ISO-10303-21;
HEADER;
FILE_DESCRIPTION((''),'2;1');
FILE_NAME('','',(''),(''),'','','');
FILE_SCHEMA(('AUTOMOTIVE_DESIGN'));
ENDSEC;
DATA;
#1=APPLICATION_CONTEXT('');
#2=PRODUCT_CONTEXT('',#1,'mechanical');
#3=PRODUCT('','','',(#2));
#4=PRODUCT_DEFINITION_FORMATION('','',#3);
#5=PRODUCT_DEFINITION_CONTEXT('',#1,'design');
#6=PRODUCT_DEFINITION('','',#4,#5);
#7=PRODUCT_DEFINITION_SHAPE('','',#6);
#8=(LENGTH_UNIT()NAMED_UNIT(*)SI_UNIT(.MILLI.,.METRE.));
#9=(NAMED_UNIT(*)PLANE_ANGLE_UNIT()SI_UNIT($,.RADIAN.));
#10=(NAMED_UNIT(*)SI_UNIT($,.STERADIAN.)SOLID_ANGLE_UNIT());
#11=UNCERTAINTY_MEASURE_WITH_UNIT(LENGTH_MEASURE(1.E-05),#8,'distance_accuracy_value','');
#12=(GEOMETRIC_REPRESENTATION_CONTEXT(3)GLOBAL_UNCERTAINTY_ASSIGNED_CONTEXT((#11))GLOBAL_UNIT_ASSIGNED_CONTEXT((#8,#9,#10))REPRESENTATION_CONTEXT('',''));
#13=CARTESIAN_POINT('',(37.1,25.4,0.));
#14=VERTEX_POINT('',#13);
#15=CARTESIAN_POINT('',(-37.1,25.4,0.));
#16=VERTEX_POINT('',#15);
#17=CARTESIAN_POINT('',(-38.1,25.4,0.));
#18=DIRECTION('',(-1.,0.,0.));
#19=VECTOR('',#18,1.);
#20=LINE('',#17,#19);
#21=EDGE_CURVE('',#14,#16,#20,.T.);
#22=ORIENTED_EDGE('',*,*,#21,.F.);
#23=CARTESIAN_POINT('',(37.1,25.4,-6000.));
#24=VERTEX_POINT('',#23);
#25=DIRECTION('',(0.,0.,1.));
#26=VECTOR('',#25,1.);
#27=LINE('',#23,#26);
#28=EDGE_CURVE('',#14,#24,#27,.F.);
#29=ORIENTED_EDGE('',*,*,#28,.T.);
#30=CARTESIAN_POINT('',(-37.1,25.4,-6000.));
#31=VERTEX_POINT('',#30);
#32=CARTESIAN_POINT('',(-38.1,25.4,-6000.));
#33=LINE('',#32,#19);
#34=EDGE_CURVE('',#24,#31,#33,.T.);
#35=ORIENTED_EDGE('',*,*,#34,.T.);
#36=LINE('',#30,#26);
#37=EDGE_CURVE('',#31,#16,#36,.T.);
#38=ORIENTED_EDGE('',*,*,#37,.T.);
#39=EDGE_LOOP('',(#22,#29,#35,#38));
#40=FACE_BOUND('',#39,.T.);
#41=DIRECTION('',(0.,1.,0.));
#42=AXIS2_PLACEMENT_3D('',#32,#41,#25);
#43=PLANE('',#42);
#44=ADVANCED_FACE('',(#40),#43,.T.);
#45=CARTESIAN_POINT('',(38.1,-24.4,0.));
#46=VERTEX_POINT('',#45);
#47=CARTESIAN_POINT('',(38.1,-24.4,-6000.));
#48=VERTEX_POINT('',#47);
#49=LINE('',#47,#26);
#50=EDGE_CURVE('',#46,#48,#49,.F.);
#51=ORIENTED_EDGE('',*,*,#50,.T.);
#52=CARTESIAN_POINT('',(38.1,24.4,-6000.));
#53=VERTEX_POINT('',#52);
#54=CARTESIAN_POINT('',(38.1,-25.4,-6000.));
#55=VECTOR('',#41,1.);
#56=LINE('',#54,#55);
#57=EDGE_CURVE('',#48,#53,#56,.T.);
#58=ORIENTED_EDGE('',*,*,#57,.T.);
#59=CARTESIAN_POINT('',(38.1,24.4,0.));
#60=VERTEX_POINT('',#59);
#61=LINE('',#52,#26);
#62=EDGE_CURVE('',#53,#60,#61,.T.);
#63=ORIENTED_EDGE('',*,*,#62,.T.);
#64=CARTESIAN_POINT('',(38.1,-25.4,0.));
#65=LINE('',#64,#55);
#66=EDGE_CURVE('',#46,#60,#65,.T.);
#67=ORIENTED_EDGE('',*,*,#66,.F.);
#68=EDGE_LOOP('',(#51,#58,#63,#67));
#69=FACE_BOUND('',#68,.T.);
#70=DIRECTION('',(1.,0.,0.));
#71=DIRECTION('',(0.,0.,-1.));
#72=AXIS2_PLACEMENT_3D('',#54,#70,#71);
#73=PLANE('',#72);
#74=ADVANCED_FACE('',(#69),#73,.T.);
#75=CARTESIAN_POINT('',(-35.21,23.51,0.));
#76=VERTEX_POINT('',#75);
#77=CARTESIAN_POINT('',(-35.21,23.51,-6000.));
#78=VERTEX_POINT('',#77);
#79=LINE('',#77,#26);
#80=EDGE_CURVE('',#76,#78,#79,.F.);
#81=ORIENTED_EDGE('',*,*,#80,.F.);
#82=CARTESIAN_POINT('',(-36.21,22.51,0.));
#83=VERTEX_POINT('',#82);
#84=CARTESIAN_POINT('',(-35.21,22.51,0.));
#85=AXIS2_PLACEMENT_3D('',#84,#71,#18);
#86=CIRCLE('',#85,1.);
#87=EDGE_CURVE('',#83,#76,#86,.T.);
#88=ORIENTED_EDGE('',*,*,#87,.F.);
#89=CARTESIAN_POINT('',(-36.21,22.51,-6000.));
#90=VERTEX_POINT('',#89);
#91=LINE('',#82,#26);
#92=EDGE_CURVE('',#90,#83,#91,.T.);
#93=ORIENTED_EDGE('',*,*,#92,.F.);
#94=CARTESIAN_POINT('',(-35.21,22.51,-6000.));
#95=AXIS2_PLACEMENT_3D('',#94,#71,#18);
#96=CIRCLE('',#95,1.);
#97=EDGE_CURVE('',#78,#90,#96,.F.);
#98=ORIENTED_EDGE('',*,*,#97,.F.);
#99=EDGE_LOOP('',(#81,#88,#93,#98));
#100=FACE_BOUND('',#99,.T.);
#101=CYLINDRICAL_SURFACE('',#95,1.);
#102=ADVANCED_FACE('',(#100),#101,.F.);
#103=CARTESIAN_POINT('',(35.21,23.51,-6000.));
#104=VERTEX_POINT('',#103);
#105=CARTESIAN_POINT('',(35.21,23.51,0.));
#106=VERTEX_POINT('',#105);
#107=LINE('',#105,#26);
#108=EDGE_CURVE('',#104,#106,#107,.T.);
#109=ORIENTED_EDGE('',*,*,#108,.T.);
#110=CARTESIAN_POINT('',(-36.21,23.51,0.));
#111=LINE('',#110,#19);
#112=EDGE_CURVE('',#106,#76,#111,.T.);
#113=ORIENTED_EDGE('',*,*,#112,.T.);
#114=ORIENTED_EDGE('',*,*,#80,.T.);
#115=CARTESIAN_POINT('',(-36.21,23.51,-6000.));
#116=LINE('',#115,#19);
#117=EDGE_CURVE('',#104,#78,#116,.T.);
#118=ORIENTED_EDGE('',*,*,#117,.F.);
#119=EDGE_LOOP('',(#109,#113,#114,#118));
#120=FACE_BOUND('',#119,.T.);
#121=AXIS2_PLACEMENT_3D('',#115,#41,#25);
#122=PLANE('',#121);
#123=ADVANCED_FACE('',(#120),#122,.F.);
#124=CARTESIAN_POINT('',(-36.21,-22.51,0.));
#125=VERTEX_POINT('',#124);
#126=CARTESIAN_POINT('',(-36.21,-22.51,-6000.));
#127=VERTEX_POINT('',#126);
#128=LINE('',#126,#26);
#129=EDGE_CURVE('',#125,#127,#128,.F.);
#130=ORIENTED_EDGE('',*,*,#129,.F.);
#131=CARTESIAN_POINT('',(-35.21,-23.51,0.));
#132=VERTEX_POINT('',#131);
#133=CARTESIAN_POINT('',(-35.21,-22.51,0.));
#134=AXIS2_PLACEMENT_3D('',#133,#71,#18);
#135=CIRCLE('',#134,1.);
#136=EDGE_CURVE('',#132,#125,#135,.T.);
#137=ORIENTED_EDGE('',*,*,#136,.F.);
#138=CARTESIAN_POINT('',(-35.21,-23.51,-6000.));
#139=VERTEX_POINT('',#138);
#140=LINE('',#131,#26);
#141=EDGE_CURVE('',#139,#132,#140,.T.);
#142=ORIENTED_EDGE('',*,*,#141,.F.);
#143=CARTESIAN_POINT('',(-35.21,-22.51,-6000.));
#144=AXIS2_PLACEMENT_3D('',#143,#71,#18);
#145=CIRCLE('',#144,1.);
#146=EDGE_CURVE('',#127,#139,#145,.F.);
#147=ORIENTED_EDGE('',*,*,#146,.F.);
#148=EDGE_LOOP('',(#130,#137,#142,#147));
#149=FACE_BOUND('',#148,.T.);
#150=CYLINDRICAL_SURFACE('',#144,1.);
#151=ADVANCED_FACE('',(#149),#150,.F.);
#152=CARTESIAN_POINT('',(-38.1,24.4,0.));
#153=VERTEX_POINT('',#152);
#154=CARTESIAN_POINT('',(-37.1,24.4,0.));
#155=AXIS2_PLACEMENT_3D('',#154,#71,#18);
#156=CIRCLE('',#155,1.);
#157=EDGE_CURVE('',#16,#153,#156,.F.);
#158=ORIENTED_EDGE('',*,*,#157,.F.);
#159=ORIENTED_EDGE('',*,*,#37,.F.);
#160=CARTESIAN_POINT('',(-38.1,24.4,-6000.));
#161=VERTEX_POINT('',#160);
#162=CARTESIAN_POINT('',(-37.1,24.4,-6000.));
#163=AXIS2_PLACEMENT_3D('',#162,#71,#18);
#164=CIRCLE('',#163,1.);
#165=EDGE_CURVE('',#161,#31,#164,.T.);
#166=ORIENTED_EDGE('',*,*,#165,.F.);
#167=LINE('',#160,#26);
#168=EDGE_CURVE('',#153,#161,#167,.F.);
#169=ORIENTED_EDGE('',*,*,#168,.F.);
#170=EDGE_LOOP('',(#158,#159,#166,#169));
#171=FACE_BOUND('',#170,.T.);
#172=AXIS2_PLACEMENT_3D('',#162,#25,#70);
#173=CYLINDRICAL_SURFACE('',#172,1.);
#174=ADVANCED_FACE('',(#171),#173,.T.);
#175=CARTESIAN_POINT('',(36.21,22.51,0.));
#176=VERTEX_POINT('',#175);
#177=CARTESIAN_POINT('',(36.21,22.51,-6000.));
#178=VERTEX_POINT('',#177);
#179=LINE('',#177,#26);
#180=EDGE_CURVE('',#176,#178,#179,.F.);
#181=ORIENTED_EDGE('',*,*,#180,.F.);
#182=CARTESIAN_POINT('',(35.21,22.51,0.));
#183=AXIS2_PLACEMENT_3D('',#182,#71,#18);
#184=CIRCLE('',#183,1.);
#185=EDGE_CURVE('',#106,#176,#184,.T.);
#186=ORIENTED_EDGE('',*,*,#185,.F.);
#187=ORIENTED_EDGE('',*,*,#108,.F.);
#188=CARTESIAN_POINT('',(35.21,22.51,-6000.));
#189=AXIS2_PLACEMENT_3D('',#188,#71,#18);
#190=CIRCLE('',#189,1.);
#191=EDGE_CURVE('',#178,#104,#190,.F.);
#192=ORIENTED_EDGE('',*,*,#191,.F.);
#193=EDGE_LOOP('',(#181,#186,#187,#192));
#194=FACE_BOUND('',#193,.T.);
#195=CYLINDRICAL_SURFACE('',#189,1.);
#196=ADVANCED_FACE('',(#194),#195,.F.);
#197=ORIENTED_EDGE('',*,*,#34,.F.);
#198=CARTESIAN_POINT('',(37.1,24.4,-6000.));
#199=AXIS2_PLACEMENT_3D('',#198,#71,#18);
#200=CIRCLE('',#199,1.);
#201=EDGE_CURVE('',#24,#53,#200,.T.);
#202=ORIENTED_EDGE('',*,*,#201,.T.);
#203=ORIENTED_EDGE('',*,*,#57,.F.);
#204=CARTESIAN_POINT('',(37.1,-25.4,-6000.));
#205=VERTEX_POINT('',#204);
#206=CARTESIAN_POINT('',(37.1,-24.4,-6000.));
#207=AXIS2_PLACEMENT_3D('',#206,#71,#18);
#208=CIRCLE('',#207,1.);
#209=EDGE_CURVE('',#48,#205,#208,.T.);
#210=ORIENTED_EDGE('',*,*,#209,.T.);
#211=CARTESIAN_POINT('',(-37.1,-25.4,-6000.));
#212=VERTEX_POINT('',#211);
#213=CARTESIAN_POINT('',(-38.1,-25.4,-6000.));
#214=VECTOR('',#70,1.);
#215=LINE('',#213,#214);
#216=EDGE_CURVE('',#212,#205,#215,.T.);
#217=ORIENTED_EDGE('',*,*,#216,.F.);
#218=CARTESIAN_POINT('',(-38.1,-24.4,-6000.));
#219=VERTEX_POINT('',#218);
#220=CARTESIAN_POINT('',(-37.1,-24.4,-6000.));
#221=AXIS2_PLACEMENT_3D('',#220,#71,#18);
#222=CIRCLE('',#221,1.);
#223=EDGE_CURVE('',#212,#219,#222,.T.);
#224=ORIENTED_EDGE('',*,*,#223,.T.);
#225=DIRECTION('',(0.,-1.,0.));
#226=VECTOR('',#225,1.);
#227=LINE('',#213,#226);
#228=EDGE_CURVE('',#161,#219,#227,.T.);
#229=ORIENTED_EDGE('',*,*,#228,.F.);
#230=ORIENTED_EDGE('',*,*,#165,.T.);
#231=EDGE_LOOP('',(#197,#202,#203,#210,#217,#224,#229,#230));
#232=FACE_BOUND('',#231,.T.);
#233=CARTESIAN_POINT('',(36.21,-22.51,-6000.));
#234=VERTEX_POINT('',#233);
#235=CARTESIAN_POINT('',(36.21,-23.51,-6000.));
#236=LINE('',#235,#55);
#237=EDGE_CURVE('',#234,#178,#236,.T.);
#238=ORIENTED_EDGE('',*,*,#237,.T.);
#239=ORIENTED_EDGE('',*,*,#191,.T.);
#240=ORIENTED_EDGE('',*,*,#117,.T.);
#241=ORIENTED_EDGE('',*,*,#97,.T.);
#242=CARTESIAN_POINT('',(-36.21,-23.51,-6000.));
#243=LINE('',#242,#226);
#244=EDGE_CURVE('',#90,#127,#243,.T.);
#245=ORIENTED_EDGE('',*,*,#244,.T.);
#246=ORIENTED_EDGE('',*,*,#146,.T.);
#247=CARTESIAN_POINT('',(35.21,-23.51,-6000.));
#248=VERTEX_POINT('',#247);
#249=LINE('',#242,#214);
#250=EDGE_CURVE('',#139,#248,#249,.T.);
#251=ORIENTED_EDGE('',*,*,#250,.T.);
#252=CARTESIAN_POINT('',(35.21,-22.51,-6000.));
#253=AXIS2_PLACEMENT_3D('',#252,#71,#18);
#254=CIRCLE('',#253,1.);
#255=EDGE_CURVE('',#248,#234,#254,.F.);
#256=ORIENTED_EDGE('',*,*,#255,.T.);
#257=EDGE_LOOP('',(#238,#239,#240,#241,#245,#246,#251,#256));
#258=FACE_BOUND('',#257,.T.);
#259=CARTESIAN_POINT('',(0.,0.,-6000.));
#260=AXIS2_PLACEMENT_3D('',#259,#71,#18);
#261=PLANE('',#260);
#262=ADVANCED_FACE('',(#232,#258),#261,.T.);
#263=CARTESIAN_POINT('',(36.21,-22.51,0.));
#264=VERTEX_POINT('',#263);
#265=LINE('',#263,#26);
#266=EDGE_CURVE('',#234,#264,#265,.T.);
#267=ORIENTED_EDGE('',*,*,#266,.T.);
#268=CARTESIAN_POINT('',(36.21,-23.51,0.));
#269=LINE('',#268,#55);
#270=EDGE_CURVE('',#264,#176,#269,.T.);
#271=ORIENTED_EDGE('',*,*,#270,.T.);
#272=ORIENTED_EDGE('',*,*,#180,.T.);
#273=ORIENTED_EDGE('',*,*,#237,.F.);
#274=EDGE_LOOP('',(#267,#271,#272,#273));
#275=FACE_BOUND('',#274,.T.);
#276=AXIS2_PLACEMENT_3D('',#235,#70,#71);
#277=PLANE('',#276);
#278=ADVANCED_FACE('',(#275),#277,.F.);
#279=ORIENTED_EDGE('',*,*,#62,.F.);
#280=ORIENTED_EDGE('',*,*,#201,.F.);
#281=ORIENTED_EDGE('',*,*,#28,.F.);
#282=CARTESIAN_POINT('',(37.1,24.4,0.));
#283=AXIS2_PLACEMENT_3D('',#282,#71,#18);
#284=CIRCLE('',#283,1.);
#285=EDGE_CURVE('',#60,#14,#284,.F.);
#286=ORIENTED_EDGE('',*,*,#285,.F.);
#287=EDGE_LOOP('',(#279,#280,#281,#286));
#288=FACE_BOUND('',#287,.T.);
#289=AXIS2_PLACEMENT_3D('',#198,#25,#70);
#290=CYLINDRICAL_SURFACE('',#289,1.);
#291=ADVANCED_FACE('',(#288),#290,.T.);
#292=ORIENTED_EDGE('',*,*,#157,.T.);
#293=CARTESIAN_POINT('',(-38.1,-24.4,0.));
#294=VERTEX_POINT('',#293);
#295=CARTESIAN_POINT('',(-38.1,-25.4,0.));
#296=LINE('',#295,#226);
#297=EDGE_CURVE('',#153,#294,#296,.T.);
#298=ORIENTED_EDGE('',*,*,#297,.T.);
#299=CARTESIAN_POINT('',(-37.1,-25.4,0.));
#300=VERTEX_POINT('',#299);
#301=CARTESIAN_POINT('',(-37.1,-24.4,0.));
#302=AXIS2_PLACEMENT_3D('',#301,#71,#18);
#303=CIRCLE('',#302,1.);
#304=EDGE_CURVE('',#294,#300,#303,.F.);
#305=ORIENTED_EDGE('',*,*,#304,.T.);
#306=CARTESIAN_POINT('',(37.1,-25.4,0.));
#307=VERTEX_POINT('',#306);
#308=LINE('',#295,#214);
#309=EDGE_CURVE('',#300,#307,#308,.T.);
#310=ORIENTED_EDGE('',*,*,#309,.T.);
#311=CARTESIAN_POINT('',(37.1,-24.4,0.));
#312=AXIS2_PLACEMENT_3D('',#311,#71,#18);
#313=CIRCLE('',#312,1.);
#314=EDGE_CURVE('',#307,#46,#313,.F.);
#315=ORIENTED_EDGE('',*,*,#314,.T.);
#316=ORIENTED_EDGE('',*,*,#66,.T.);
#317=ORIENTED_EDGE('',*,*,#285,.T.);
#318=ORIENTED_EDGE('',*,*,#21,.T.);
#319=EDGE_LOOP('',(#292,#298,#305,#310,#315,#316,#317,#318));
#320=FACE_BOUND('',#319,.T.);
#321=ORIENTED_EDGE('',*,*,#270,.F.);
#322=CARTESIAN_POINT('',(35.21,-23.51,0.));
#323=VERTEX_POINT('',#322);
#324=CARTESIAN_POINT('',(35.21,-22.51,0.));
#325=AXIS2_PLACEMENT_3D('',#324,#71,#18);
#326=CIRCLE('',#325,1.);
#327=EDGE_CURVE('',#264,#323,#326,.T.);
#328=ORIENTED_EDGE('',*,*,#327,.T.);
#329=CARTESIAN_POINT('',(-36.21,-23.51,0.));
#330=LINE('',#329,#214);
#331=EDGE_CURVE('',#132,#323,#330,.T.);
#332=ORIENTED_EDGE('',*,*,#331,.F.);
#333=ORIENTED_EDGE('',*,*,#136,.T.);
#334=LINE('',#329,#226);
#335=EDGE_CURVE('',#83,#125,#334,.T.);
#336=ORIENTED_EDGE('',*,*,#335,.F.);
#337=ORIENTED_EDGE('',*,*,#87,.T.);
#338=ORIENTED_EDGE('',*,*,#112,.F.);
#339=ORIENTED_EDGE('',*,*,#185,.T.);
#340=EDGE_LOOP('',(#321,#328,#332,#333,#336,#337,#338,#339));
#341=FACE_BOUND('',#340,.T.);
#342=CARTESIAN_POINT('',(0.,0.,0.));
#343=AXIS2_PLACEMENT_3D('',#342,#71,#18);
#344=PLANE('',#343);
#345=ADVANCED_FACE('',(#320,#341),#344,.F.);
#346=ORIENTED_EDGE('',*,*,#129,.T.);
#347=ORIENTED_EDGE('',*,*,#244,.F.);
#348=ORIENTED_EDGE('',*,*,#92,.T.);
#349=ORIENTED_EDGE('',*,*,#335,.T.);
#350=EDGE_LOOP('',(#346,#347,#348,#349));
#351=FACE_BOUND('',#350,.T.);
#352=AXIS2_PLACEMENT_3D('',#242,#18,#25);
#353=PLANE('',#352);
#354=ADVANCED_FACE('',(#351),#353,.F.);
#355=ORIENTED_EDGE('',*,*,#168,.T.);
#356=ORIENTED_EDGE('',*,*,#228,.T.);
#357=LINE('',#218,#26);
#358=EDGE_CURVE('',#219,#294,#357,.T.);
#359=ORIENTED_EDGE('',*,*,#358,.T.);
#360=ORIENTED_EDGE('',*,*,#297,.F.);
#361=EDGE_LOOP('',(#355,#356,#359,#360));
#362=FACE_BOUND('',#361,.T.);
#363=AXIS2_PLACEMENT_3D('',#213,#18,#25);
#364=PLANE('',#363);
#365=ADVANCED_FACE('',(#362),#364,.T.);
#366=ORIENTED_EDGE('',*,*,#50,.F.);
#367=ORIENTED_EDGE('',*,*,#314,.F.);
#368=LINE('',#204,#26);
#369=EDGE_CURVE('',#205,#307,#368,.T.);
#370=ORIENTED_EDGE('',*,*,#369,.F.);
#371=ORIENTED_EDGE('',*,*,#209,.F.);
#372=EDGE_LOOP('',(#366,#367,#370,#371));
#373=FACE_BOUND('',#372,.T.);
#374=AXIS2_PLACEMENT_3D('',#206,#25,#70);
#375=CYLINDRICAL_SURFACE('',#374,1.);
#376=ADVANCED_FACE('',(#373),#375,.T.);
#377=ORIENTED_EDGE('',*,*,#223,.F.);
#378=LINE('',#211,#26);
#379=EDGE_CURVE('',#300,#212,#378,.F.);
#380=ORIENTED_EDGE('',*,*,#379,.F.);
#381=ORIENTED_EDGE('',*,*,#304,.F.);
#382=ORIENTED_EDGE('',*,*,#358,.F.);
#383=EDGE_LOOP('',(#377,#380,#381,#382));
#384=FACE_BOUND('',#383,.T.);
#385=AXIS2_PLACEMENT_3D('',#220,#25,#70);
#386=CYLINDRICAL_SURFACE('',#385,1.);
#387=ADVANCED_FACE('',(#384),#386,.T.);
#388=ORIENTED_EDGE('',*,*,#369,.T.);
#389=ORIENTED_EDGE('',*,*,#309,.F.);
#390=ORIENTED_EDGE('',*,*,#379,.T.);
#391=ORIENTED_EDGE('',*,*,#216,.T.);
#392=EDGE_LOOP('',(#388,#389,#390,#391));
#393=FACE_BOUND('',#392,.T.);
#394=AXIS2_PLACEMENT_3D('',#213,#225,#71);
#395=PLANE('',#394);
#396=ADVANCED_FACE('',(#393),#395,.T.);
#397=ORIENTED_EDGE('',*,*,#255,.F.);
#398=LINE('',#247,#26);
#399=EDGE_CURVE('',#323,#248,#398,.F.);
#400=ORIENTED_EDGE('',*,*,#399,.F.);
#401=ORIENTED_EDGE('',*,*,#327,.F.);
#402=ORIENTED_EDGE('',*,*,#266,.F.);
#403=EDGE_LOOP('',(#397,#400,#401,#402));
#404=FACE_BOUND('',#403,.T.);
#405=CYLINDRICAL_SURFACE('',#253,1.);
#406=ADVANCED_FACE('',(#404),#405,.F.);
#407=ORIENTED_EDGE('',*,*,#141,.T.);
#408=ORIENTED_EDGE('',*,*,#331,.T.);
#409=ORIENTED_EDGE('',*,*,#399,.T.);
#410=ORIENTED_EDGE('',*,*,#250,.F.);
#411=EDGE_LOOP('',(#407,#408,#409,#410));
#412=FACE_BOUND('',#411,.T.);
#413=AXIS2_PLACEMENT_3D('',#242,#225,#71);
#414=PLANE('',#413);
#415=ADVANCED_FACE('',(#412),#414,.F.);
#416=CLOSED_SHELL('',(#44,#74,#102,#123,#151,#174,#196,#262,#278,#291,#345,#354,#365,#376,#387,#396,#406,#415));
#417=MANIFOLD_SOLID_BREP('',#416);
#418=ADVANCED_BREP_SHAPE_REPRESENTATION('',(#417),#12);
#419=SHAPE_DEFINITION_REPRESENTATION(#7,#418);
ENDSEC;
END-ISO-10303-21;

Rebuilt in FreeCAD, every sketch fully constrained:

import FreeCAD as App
import Part
import Sketcher
from FreeCAD import Vector


def edges_at(feature, points):
    """Names of the edges that pass closest to the given points."""
    edges = feature.Shape.Edges
    near = lambda p: min(range(len(edges)), key=lambda i: edges[i].distToShape(Part.Vertex(*p))[0])
    return sorted({f"Edge{near(p) + 1}" for p in points})


def add_polygon(sketch, points):
    """Adds a closed chain of lines whose ends are joined by coincident constraints."""
    first, n = sketch.GeometryCount, len(points)
    for a, b in zip(points, points[1:] + points[:1]):
        sketch.addGeometry(Part.LineSegment(App.Vector(*a, 0), App.Vector(*b, 0)), False)
    for i in range(n):
        sketch.addConstraint(Sketcher.Constraint("Coincident", first + i, 2, first + (i + 1) % n, 1))

doc = App.newDocument("Part")
body = doc.addObject("PartDesign::Body", "Body")

sketch1 = doc.addObject("Sketcher::SketchObject", "Sketch")
body.addObject(sketch1)
sketch1.AttachmentSupport = (doc.XY_Plane, [""])
sketch1.MapMode = "FlatFace"
add_polygon(sketch1, [(-38, 25), (-38, -25), (38, -25), (38, 25)])
add_polygon(sketch1, [(36, -24), (-36, -24), (-36, 24), (36, 24)])
sketch1.addConstraint([
    Sketcher.Constraint("Vertical", 0),
    Sketcher.Constraint("Horizontal", 1),
    Sketcher.Constraint("Vertical", 2),
    Sketcher.Constraint("Horizontal", 3),
    Sketcher.Constraint("Horizontal", 4),
    Sketcher.Constraint("Vertical", 5),
    Sketcher.Constraint("Horizontal", 6),
    Sketcher.Constraint("Vertical", 7),
    Sketcher.Constraint("Symmetric", 0, 2, 2, 2, -1, 1),
    Sketcher.Constraint("Symmetric", 4, 2, 6, 2, -1, 1),
    Sketcher.Constraint("DistanceX", 1, 1, 1, 2, 76.2),
    Sketcher.Constraint("DistanceY", 0, 2, 0, 1, 50.8),
    Sketcher.Constraint("DistanceX", 4, 2, 4, 1, 72.42),
    Sketcher.Constraint("DistanceY", 5, 1, 5, 2, 47.02),
])
pad1 = doc.addObject("PartDesign::Pad", "Pad")
body.addObject(pad1)
pad1.Profile = sketch1
pad1.Length = 6000
pad1.Reversed = True
doc.recompute()

fillet = doc.addObject("PartDesign::Fillet", "Fillet")
body.addObject(fillet)
fillet.Base = (pad1, edges_at(pad1, [
    (36.21, -23.51, -3000),
    (-36.21, -23.51, -3000),
    (-36.21, 23.51, -3000),
    (36.21, 23.51, -3000),
    (38.1, -25.4, -3000),
    (-38.1, -25.4, -3000),
    (-38.1, 25.4, -3000),
    (38.1, 25.4, -3000),
]))
fillet.Radius = 1

doc.recompute()
